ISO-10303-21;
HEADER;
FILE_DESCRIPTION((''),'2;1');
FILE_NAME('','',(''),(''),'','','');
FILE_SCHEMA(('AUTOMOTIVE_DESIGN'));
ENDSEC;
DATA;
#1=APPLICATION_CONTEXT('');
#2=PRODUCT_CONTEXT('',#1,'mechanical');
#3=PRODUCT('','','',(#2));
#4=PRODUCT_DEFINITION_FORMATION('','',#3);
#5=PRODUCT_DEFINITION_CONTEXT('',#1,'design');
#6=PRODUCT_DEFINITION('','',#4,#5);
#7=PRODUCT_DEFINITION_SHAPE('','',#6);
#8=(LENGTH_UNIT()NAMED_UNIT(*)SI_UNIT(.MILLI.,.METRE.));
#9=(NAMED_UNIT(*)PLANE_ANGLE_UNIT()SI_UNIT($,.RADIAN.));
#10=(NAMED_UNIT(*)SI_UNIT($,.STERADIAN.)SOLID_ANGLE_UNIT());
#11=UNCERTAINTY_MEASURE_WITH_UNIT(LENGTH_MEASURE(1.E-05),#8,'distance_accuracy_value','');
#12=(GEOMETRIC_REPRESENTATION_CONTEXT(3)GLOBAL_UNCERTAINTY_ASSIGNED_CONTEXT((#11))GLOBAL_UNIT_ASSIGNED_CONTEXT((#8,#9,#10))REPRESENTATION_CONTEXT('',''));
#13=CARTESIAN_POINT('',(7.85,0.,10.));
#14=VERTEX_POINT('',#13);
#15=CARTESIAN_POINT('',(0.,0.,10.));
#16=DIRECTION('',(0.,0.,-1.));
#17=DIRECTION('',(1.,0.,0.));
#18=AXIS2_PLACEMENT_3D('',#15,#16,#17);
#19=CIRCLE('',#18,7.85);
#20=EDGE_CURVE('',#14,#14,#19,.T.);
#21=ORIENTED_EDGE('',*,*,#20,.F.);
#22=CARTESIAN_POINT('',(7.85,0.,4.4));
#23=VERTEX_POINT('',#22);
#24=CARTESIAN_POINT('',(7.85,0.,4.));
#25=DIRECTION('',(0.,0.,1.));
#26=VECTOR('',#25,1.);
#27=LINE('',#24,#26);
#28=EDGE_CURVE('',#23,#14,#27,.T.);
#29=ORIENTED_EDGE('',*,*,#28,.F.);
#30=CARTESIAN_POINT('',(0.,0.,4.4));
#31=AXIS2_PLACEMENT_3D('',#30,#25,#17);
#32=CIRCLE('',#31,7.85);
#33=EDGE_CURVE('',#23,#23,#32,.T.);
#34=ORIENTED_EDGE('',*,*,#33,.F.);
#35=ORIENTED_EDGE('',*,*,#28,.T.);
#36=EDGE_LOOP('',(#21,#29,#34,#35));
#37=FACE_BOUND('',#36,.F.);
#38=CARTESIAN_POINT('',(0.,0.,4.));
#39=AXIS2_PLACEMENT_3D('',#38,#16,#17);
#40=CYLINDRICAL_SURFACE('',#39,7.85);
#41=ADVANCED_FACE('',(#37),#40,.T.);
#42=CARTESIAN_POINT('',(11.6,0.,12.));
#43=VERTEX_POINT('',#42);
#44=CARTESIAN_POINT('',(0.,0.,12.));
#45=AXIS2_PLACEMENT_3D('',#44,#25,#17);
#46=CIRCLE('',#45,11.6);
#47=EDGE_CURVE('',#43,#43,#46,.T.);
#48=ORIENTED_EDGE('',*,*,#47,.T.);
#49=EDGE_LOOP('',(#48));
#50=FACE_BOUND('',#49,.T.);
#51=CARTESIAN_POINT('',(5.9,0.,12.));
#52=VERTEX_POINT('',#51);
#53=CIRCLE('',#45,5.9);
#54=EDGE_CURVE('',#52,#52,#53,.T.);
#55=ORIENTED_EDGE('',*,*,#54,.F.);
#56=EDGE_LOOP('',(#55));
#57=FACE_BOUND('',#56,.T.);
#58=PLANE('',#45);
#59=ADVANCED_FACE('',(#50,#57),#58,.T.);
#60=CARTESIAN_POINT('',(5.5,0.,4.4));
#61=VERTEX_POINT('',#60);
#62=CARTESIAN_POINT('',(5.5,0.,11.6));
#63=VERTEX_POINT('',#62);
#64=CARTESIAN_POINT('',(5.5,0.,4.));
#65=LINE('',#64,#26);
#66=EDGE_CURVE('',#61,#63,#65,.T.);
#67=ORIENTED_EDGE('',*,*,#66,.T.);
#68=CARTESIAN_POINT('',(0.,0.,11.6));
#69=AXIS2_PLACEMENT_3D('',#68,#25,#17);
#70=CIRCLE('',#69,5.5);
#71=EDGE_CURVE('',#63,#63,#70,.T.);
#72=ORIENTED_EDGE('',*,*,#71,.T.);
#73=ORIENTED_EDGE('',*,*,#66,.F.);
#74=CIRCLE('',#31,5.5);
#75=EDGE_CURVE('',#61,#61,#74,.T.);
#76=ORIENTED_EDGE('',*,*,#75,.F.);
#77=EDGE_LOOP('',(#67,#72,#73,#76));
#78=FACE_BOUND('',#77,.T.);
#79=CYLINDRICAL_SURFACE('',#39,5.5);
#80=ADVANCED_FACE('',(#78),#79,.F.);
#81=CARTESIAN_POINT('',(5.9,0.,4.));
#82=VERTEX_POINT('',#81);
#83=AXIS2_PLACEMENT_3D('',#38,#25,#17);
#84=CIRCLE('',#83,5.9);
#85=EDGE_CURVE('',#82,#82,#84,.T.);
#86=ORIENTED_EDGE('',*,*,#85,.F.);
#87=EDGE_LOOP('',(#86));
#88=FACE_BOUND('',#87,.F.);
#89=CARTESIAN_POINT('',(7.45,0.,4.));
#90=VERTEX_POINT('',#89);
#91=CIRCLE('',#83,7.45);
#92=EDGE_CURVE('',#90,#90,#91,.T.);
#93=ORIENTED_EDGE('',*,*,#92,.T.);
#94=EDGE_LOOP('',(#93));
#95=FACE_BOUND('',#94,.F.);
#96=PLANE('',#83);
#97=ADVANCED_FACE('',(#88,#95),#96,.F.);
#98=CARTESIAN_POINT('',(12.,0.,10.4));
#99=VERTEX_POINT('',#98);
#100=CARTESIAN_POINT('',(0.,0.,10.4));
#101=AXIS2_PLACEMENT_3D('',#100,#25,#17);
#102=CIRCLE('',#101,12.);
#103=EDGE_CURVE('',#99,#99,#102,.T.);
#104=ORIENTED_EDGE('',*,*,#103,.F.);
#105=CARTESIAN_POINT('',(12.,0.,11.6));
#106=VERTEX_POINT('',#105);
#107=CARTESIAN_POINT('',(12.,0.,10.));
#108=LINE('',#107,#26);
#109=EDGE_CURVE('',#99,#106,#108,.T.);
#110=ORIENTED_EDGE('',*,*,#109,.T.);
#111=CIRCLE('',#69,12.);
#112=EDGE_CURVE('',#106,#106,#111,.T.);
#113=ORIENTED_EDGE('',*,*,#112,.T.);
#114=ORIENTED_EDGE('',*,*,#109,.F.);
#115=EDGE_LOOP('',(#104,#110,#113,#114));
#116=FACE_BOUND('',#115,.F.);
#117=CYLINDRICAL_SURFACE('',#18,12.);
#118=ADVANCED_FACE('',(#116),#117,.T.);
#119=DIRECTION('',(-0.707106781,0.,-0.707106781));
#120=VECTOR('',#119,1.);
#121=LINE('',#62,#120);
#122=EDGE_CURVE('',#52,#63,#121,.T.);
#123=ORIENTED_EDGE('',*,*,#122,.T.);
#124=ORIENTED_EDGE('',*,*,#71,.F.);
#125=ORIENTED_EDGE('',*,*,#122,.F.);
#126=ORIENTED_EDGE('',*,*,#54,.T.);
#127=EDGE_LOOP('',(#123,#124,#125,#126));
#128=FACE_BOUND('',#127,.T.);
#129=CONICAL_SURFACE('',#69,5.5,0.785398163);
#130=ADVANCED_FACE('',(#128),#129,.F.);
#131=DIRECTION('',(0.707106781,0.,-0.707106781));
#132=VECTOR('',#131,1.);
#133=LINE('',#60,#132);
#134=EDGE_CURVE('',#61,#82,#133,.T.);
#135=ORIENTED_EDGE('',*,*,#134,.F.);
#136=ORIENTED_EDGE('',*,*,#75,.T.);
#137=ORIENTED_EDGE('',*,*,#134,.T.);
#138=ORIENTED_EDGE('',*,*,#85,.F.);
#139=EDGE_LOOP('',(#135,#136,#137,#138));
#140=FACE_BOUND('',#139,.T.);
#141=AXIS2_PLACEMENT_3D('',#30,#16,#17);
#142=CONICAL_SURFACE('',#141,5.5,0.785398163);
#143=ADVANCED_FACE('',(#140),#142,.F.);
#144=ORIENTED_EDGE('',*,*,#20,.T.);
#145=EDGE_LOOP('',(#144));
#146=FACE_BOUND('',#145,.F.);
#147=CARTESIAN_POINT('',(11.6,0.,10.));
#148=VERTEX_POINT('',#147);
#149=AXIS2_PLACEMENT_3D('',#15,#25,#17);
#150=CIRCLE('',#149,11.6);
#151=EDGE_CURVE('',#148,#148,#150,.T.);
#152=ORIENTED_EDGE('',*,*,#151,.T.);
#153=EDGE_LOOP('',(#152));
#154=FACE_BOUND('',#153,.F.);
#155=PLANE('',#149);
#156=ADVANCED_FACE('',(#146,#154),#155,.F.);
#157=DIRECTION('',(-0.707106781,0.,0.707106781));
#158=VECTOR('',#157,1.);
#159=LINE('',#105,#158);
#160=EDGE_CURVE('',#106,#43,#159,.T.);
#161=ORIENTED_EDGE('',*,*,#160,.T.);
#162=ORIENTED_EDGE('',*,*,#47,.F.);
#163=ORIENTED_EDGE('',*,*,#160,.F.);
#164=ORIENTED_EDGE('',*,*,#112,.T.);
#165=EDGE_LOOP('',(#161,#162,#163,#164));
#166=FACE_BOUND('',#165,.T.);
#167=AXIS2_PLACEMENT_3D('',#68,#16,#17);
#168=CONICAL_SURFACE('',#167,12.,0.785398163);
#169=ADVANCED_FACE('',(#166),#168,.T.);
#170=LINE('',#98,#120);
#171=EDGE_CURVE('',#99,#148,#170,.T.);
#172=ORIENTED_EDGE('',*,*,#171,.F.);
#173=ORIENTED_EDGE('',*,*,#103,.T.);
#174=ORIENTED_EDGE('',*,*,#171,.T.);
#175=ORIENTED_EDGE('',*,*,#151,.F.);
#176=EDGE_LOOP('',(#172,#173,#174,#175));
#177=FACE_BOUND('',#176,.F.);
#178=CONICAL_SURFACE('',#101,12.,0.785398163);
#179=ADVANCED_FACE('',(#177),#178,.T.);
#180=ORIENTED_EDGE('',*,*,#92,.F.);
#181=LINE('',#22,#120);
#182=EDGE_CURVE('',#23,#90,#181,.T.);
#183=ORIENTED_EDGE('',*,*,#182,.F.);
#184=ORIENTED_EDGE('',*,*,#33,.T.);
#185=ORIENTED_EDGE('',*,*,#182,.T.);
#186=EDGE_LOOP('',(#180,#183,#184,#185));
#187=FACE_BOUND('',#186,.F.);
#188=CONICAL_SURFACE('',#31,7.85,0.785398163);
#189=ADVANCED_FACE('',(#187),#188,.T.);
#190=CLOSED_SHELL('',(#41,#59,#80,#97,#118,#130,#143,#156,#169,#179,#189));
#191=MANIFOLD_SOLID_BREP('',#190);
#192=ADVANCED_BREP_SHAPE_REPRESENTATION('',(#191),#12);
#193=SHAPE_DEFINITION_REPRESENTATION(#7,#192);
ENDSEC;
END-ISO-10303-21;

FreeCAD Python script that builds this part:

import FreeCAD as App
import Part
import Sketcher

V = App.Vector
Q = App.Units.Quantity


def edges_at(feature, points):
    """Names of the edges that pass closest to the given points."""
    edges = feature.Shape.Edges
    near = lambda p: min(range(len(edges)), key=lambda i: edges[i].distToShape(Part.Vertex(*p))[0])
    return sorted({f"Edge{near(p) + 1}" for p in points})

doc = App.newDocument("Part")
params = doc.addObject("Spreadsheet::Sheet", "Params")
for row, (alias, value) in enumerate([
    ("sketch1_diameter", "11 mm"),
    ("pad1_length", "8 mm"),
    ("sketch2_diameter", "24 mm"),
    ("pad2_length", "2 mm"),
    ("sketch3_diameter", "15.7 mm"),
    ("pad3_length", "8 mm"),
    ("chamfer_size", "0.4 mm"),
], start=1):
    params.set(f"A{row}", alias)
    params.set(f"B{row}", "=" + value)
    params.setAlias(f"B{row}", alias)

body = doc.addObject("PartDesign::Body", "Body")

sketch1 = doc.addObject("Sketcher::SketchObject", "Sketch")
body.addObject(sketch1)
sketch1.AttachmentSupport = (doc.XY_Plane, [""])
sketch1.MapMode = "FlatFace"
sketch1.AttachmentOffset = App.Placement(V(0, 0, -2), App.Rotation())
sketch1.addGeometry(Part.Circle(V(0, 0, 0), V(0, 0, 1), 6), False)
sketch1.addConstraint([
    Sketcher.Constraint("Coincident", 0, 3, -1, 1),
    Sketcher.Constraint("Diameter", 0, Q("11 mm")),
])
sketch1.setExpression("Constraints[1]", "Params.sketch1_diameter")
pad1 = doc.addObject("PartDesign::Pad", "Pad")
body.addObject(pad1)
pad1.Profile = sketch1
pad1.setExpression("Length", "Params.pad1_length")
body2 = doc.addObject("PartDesign::Body", "Body001")

sketch2 = doc.addObject("Sketcher::SketchObject", "Sketch001")
body2.addObject(sketch2)
sketch2.AttachmentSupport = (doc.getObject("XY_Plane001"), [""])
sketch2.MapMode = "FlatFace"
sketch2.AttachmentOffset = App.Placement(V(0, 0, 4), App.Rotation())
sketch2.addGeometry(Part.Circle(V(0, 0, 0), V(0, 0, 1), 12), False)
sketch2.addConstraint([
    Sketcher.Constraint("Coincident", 0, 3, -1, 1),
    Sketcher.Constraint("Diameter", 0, Q("24 mm")),
])
sketch2.setExpression("Constraints[1]", "Params.sketch2_diameter")
pad2 = doc.addObject("PartDesign::Pad", "Pad001")
body2.addObject(pad2)
pad2.Profile = sketch2
pad2.setExpression("Length", "Params.pad2_length")
body3 = doc.addObject("PartDesign::Body", "Body002")

sketch3 = doc.addObject("Sketcher::SketchObject", "Sketch002")
body3.addObject(sketch3)
sketch3.AttachmentSupport = (doc.getObject("XY_Plane002"), [""])
sketch3.MapMode = "FlatFace"
sketch3.AttachmentOffset = App.Placement(V(0, 0, -2), App.Rotation())
sketch3.addGeometry(Part.Circle(V(0, 0, 0), V(0, 0, 1), 8), False)
sketch3.addConstraint([
    Sketcher.Constraint("Coincident", 0, 3, -1, 1),
    Sketcher.Constraint("Diameter", 0, Q("15.7 mm")),
])
sketch3.setExpression("Constraints[1]", "Params.sketch3_diameter")
pad3 = doc.addObject("PartDesign::Pad", "Pad002")
body3.addObject(pad3)
pad3.Profile = sketch3
pad3.setExpression("Length", "Params.pad3_length")
doc.recompute()

boolean = doc.addObject("PartDesign::Boolean", "Boolean")
body3.addObject(boolean)
boolean.Type = "Fuse"
boolean.addObjects([body2])
doc.recompute()

boolean2 = doc.addObject("PartDesign::Boolean", "Boolean001")
body3.addObject(boolean2)
boolean2.Type = "Cut"
boolean2.addObjects([body])
doc.recompute()

chamfer = doc.addObject("PartDesign::Chamfer", "Chamfer")
body3.addObject(chamfer)
chamfer.Base = (boolean2, edges_at(boolean2, [
    (-12, 0, 6),
    (-12, 0, 4),
    (-7.85, 0, -2),
    (-5.5, 0, 6),
    (-5.5, 0, -2),
]))
chamfer.setExpression("Size", "Params.chamfer_size")
body4 = doc.addObject("PartDesign::Body", "Body003")
doc.recompute()

body3.Placement = App.Placement(V(0, 0, 6), App.Rotation(V(0, 0, 1), 0))
boolean3 = doc.addObject("PartDesign::Boolean", "Boolean002")
body4.addObject(boolean3)
boolean3.Type = "Fuse"
boolean3.addObjects([body3])

doc.recompute()
